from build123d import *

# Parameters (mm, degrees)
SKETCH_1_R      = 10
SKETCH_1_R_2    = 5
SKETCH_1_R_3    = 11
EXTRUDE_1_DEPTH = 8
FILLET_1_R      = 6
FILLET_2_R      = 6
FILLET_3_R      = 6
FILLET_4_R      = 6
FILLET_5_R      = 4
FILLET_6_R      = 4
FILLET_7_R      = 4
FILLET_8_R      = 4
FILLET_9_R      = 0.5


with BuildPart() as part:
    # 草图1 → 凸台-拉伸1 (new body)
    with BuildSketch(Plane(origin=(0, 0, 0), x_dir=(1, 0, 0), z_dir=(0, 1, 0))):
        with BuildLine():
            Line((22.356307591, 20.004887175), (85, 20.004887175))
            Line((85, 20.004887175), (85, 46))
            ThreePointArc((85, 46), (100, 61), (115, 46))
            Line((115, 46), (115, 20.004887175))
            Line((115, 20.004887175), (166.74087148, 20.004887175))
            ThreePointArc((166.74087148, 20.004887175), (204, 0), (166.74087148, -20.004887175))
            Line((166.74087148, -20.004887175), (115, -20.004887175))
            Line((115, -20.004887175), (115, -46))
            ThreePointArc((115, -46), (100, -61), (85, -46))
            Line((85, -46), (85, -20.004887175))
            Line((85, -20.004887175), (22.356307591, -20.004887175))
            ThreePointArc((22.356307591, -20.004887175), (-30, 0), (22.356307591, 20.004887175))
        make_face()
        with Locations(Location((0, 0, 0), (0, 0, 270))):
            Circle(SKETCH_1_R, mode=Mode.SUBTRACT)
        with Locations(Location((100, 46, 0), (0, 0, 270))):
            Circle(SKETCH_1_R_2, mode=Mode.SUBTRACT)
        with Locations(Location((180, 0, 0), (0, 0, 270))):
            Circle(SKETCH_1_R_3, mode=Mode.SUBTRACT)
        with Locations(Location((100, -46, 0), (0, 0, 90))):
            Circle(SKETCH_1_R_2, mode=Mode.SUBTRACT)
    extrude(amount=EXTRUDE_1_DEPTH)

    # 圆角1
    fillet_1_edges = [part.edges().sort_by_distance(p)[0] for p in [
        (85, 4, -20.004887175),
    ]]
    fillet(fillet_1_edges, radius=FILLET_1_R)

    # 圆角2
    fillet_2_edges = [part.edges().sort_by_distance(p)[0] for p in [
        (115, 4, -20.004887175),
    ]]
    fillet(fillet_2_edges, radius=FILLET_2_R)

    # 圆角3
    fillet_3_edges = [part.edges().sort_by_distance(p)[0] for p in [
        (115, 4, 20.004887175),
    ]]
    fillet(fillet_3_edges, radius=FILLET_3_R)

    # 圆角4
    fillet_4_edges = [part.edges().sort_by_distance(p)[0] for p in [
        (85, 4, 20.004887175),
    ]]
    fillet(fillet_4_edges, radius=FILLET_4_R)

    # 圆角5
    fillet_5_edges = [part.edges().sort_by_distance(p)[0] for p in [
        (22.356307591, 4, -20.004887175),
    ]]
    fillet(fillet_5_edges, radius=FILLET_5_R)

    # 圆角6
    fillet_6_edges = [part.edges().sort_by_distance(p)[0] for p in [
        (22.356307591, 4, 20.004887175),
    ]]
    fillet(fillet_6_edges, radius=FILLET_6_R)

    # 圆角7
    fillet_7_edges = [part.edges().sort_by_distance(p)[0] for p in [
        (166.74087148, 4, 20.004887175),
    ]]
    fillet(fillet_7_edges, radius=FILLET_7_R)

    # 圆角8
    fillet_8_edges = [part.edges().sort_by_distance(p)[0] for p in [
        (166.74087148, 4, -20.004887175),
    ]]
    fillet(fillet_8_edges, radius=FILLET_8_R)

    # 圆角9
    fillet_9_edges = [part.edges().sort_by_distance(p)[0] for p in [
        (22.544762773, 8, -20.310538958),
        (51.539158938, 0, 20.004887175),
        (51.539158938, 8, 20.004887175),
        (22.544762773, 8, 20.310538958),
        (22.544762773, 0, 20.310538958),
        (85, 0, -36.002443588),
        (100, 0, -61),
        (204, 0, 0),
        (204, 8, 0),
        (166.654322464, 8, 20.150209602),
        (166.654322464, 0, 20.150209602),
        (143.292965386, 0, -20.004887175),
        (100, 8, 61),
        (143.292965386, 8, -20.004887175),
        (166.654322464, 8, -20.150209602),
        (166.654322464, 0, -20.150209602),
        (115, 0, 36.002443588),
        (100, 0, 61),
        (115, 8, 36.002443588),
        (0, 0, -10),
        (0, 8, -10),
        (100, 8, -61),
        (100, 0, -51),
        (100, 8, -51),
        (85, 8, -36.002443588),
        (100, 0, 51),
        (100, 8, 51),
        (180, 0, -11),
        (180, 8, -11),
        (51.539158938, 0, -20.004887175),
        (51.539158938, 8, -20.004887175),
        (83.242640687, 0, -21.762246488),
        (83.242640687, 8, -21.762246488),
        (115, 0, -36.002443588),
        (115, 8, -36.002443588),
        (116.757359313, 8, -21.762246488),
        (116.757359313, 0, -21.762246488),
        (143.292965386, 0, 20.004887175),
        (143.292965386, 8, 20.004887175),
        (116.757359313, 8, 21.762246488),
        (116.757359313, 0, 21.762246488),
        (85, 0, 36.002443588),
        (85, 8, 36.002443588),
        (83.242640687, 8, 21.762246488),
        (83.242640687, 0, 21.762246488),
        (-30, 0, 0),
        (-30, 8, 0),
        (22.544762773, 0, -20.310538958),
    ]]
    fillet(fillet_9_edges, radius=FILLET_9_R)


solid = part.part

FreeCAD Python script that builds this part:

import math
import FreeCAD as App
import Part
import Sketcher
from FreeCAD import Vector


def edges_at(feature, points):
    """Names of the edges that pass closest to the given points."""
    edges = feature.Shape.Edges
    near = lambda p: min(range(len(edges)), key=lambda i: edges[i].distToShape(Part.Vertex(*p))[0])
    return sorted({f"Edge{near(p) + 1}" for p in points})

doc = App.newDocument("Part")
body = doc.addObject("PartDesign::Body", "Body")

# Sketch on XZ plane
sketch1 = body.newObject("Sketcher::SketchObject", "Sketch")
sketch1.AttachmentSupport = (doc.getObject("XZ_Plane"), [""])
sketch1.MapMode = "FlatFace"
sketch1.addGeometry([
    Part.LineSegment(Vector(85, -20, 0), Vector(22, -20, 0)),  # 0
    Part.ArcOfCircle(Part.Circle(Vector(0, 0, 0), Vector(0, 0, 1), 30), math.radians(42), math.radians(318)),  # 1
    Part.LineSegment(Vector(22, 20, 0), Vector(85, 20, 0)),  # 2
    Part.LineSegment(Vector(85, 20, 0), Vector(85, 46, 0)),  # 3
    Part.ArcOfCircle(Part.Circle(Vector(100, 46, 0), Vector(0, 0, 1), 15), math.radians(0), math.radians(180)),  # 4
    Part.LineSegment(Vector(115, 46, 0), Vector(115, 20, 0)),  # 5
    Part.LineSegment(Vector(115, 20, 0), Vector(167, 20, 0)),  # 6
    Part.ArcOfCircle(Part.Circle(Vector(180, 0, 0), Vector(0, 0, 1), 24), math.radians(-124), math.radians(124)),  # 7
    Part.LineSegment(Vector(167, -20, 0), Vector(115, -20, 0)),  # 8
    Part.LineSegment(Vector(115, -20, 0), Vector(115, -46, 0)),  # 9
    Part.ArcOfCircle(Part.Circle(Vector(100, -46, 0), Vector(0, 0, 1), 15), math.radians(180), math.radians(360)),  # 10
    Part.LineSegment(Vector(85, -46, 0), Vector(85, -20, 0)),  # 11
    Part.Circle(Vector(100, 46, 0), Vector(0, 0, 1), 5),  # 12
    Part.Circle(Vector(180, 0, 0), Vector(0, 0, 1), 11),  # 13
    Part.Circle(Vector(100, -46, 0), Vector(0, 0, 1), 5),  # 14
    Part.Circle(Vector(0, 0, 0), Vector(0, 0, 1), 10),  # 15
], False)
sketch1.addConstraint([
    Sketcher.Constraint("Coincident", 0, 2, 1, 2),
    Sketcher.Constraint("Coincident", 1, 1, 2, 1),
    Sketcher.Constraint("Coincident", 2, 2, 3, 1),
    Sketcher.Constraint("Tangent", 3, 2, 4, 2),
    Sketcher.Constraint("Tangent", 4, 1, 5, 1),
    Sketcher.Constraint("Coincident", 5, 2, 6, 1),
    Sketcher.Constraint("Coincident", 6, 2, 7, 2),
    Sketcher.Constraint("Coincident", 7, 1, 8, 1),
    Sketcher.Constraint("Coincident", 8, 2, 9, 1),
    Sketcher.Constraint("Tangent", 9, 2, 10, 2),
    Sketcher.Constraint("Tangent", 10, 1, 11, 1),
    Sketcher.Constraint("Coincident", 11, 2, 0, 1),
    Sketcher.Constraint("Horizontal", 0),
    Sketcher.Constraint("Horizontal", 2),
    Sketcher.Constraint("Vertical", 3),
    Sketcher.Constraint("Vertical", 5),
    Sketcher.Constraint("Horizontal", 6),
    Sketcher.Constraint("Horizontal", 8),
    Sketcher.Constraint("Vertical", 9),
    Sketcher.Constraint("Vertical", 11),
    Sketcher.Constraint("Coincident", 1, 3, -1, 1),
    Sketcher.Constraint("Coincident", 15, 3, -1, 1),
    Sketcher.Constraint("Coincident", 12, 3, 4, 3),
    Sketcher.Constraint("Coincident", 13, 3, 7, 3),
    Sketcher.Constraint("Coincident", 14, 3, 10, 3),
    Sketcher.Constraint("Equal", 4, 10),
    Sketcher.Constraint("Equal", 12, 14),
    Sketcher.Constraint("Symmetric", 4, 3, 10, 3, -1),
    Sketcher.Constraint("Symmetric", 6, 2, 7, 1, -1),
    Sketcher.Constraint("Horizontal", 2, 2, 5, 2),
    Sketcher.Constraint("Horizontal", 0, 2, 7, 1),
    Sketcher.Constraint("Diameter", 12, 10.0),
    Sketcher.Constraint("Diameter", 13, 22.0),
    Sketcher.Constraint("Diameter", 15, 20.0),
    Sketcher.Constraint("Radius", 1, 30.0),
    Sketcher.Constraint("Radius", 4, 15.0),
    Sketcher.Constraint("Radius", 7, 24.0),
    Sketcher.Constraint("DistanceX", -1, 1, 4, 3, 100.0),
    Sketcher.Constraint("DistanceY", -1, 1, 4, 3, 46.0),
    Sketcher.Constraint("DistanceX", -1, 1, 7, 3, 180.0),
    Sketcher.Constraint("DistanceX", 6, 1, 6, 2, 51.740871),
])
pad1 = body.newObject("PartDesign::Pad", "Pad")
pad1.Profile = sketch1
pad1.Length = 8
pad1.Reversed = True
doc.recompute()

fillet = body.newObject("PartDesign::Fillet", "Fillet")
fillet.Base = (pad1, edges_at(pad1, [(85, 4, -20.005)]))
fillet.Radius = 6
doc.recompute()

fillet2 = body.newObject("PartDesign::Fillet", "Fillet001")
fillet2.Base = (fillet, edges_at(fillet, [(115, 4, -20.005)]))
fillet2.Radius = 6
doc.recompute()

fillet3 = body.newObject("PartDesign::Fillet", "Fillet002")
fillet3.Base = (fillet2, edges_at(fillet2, [(115, 4, 20.005)]))
fillet3.Radius = 6
doc.recompute()

fillet4 = body.newObject("PartDesign::Fillet", "Fillet003")
fillet4.Base = (fillet3, edges_at(fillet3, [(85, 4, 20.005)]))
fillet4.Radius = 6
doc.recompute()

fillet5 = body.newObject("PartDesign::Fillet", "Fillet004")
fillet5.Base = (fillet4, edges_at(fillet4, [(22.356, 4, -20.005)]))
fillet5.Radius = 4
doc.recompute()

fillet6 = body.newObject("PartDesign::Fillet", "Fillet005")
fillet6.Base = (fillet5, edges_at(fillet5, [(22.356, 4, 20.005)]))
fillet6.Radius = 4
doc.recompute()

fillet7 = body.newObject("PartDesign::Fillet", "Fillet006")
fillet7.Base = (fillet6, edges_at(fillet6, [(166.741, 4, 20.005)]))
fillet7.Radius = 4
doc.recompute()

fillet8 = body.newObject("PartDesign::Fillet", "Fillet007")
fillet8.Base = (fillet7, edges_at(fillet7, [(166.741, 4, -20.005)]))
fillet8.Radius = 4
doc.recompute()

fillet9 = body.newObject("PartDesign::Fillet", "Fillet008")
fillet9.Base = (fillet8, edges_at(fillet8, [
    (22.545, 8, -20.311),
    (51.539, 0, 20.005),
    (51.539, 8, 20.005),
    (22.545, 8, 20.311),
    (22.545, 0, 20.311),
    (85, 0, -36.002),
    (100, 0, -61),
    (204, 0, 0),
    (204, 8, 0),
    (166.654, 8, 20.15),
    (166.654, 0, 20.15),
    (143.293, 0, -20.005),
    (100, 8, 61),
    (143.293, 8, -20.005),
    (166.654, 8, -20.15),
    (166.654, 0, -20.15),
    (115, 0, 36.002),
    (100, 0, 61),
    (115, 8, 36.002),
    (0, 0, -10),
    (0, 8, -10),
    (100, 8, -61),
    (100, 0, -51),
    (100, 8, -51),
    (85, 8, -36.002),
    (100, 0, 51),
    (100, 8, 51),
    (180, 0, -11),
    (180, 8, -11),
    (51.539, 0, -20.005),
    (51.539, 8, -20.005),
    (83.243, 0, -21.762),
    (83.243, 8, -21.762),
    (115, 0, -36.002),
    (115, 8, -36.002),
    (116.757, 8, -21.762),
    (116.757, 0, -21.762),
    (143.293, 0, 20.005),
    (143.293, 8, 20.005),
    (116.757, 8, 21.762),
    (116.757, 0, 21.762),
    (85, 0, 36.002),
    (85, 8, 36.002),
    (83.243, 8, 21.762),
    (83.243, 0, 21.762),
    (-30, 0, 0),
    (-30, 8, 0),
    (22.545, 0, -20.311),
]))
fillet9.Radius = 0.5

doc.recompute()
